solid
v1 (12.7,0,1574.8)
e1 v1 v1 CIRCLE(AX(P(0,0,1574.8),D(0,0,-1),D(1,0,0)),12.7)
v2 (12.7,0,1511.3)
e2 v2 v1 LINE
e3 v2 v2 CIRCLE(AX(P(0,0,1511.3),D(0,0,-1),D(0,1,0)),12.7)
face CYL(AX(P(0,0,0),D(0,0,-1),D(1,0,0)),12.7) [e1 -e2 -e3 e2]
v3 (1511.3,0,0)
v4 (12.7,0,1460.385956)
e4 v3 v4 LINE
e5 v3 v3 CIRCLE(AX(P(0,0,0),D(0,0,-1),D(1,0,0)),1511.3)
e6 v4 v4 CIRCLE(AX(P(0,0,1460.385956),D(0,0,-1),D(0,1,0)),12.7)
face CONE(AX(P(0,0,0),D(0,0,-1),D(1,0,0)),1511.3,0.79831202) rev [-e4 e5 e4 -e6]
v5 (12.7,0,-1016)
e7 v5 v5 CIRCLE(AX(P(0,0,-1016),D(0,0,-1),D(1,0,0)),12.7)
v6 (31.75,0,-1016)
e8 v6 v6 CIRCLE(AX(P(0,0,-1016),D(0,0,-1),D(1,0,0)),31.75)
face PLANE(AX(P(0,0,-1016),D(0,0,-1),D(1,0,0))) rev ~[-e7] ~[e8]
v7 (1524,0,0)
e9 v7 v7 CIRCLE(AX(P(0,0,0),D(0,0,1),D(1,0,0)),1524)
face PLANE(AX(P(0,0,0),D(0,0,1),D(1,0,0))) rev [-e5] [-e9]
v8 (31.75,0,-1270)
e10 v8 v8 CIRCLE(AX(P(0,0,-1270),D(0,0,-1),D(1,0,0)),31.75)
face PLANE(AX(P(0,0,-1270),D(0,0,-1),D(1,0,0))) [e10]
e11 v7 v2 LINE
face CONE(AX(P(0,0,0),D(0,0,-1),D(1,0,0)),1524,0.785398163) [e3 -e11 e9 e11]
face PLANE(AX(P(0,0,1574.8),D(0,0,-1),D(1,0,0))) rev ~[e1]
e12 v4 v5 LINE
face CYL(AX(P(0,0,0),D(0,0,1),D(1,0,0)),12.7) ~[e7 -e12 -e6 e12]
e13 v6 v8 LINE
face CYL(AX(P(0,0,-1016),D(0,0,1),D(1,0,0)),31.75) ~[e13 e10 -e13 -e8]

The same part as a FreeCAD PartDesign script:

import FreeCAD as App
import Part
import Sketcher
from FreeCAD import Vector
Q = App.Units.Quantity

doc = App.newDocument("Part")
body = doc.addObject("PartDesign::Body", "Body")

sketch1 = doc.addObject("Sketcher::SketchObject", "Sketch")
body.addObject(sketch1)
sketch1.AttachmentSupport = (doc.XZ_Plane, [""])
sketch1.MapMode = "FlatFace"
sketch1.addGeometry(Part.LineSegment(Vector(0, 1524, 0), Vector(0, 0, 0)), False)
sketch1.addGeometry(Part.LineSegment(Vector(0, 0, 0), Vector(1524, 0, 0)), False)
sketch1.addGeometry(Part.LineSegment(Vector(1524, 0, 0), Vector(0, 1524, 0)), False)
sketch1.addConstraint(Sketcher.Constraint("Coincident", 0, 2, 1, 1))
sketch1.addConstraint(Sketcher.Constraint("Coincident", 1, 2, 2, 1))
sketch1.addConstraint(Sketcher.Constraint("Coincident", 2, 2, 0, 1))
sketch1.addConstraint(Sketcher.Constraint("Vertical", 0))
sketch1.addConstraint(Sketcher.Constraint("Horizontal", 1))
sketch1.addConstraint(Sketcher.Constraint("Coincident", 0, 2, -1, 1))
sketch1.addConstraint(Sketcher.Constraint("Equal", 1, 0))
sketch1.addConstraint(Sketcher.Constraint("DistanceX", 1, 1, 1, 2, Q("60 in")))
revolution = doc.addObject("PartDesign::Revolution", "Revolution")
body.addObject(revolution)
revolution.Profile = sketch1
revolution.ReferenceAxis = (sketch1, ["V_Axis"])
revolution.Angle = 360

sketch2 = doc.addObject("Sketcher::SketchObject", "Sketch001")
body.addObject(sketch2)
sketch2.AttachmentSupport = (doc.XZ_Plane, [""])
sketch2.MapMode = "FlatFace"
sketch2.addGeometry(Part.LineSegment(Vector(0, 1472.762108, 0), Vector(0, 0, 0)), False)
sketch2.addGeometry(Part.LineSegment(Vector(0, 0, 0), Vector(1511.3, 0, 0)), False)
sketch2.addGeometry(Part.LineSegment(Vector(1511.3, 0, 0), Vector(0, 1472.762108, 0)), False)
sketch2.addConstraint(Sketcher.Constraint("Coincident", 0, 2, 1, 1))
sketch2.addConstraint(Sketcher.Constraint("Coincident", 1, 2, 2, 1))
sketch2.addConstraint(Sketcher.Constraint("Coincident", 2, 2, 0, 1))
sketch2.addConstraint(Sketcher.Constraint("Vertical", 0))
sketch2.addConstraint(Sketcher.Constraint("Horizontal", 1))
sketch2.addConstraint(Sketcher.Constraint("Coincident", 0, 2, -1, 1))
sketch2.addConstraint(Sketcher.Constraint("DistanceX", 1, 1, 1, 2, Q("59.5 in")))
sketch2.addConstraint(Sketcher.Constraint("Distance", 2, Q("2110.226508 mm")))
groove = doc.addObject("PartDesign::Groove", "Groove")
body.addObject(groove)
groove.Profile = sketch2
groove.ReferenceAxis = (sketch2, ["V_Axis"])
groove.Angle = 360

sketch3 = doc.addObject("Sketcher::SketchObject", "Sketch002")
body.addObject(sketch3)
sketch3.AttachmentSupport = (doc.XY_Plane, [""])
sketch3.MapMode = "FlatFace"
sketch3.addGeometry(Part.Circle(Vector(0, 0, 0), Vector(0, 0, 1), 12.7), False)
sketch3.addConstraint(Sketcher.Constraint("Coincident", 0, 3, -1, 1))
sketch3.addConstraint(Sketcher.Constraint("Diameter", 0, Q("1 in")))
pad1 = doc.addObject("PartDesign::Pad", "Pad")
body.addObject(pad1)
pad1.Profile = sketch3
pad1.Type = "TwoLengths"
pad1.Length = Q("62 in")
pad1.Length2 = Q("40 in")

sketch4 = doc.addObject("Sketcher::SketchObject", "Sketch003")
body.addObject(sketch4)
sketch4.AttachmentSupport = (doc.XY_Plane, [""])
sketch4.MapMode = "FlatFace"
sketch4.AttachmentOffset = App.Placement(Vector(0, 0, -40 * 25.4), App.Rotation())
sketch4.addGeometry(Part.Circle(Vector(0, 0, 0), Vector(0, 0, 1), 31.75), False)
sketch4.addConstraint(Sketcher.Constraint("Coincident", 0, 3, -1, 1))
sketch4.addConstraint(Sketcher.Constraint("Diameter", 0, Q("2.5 in")))
pad2 = doc.addObject("PartDesign::Pad", "Pad001")
body.addObject(pad2)
pad2.Profile = sketch4
pad2.Length = Q("10 in")
pad2.Reversed = True

doc.recompute()
